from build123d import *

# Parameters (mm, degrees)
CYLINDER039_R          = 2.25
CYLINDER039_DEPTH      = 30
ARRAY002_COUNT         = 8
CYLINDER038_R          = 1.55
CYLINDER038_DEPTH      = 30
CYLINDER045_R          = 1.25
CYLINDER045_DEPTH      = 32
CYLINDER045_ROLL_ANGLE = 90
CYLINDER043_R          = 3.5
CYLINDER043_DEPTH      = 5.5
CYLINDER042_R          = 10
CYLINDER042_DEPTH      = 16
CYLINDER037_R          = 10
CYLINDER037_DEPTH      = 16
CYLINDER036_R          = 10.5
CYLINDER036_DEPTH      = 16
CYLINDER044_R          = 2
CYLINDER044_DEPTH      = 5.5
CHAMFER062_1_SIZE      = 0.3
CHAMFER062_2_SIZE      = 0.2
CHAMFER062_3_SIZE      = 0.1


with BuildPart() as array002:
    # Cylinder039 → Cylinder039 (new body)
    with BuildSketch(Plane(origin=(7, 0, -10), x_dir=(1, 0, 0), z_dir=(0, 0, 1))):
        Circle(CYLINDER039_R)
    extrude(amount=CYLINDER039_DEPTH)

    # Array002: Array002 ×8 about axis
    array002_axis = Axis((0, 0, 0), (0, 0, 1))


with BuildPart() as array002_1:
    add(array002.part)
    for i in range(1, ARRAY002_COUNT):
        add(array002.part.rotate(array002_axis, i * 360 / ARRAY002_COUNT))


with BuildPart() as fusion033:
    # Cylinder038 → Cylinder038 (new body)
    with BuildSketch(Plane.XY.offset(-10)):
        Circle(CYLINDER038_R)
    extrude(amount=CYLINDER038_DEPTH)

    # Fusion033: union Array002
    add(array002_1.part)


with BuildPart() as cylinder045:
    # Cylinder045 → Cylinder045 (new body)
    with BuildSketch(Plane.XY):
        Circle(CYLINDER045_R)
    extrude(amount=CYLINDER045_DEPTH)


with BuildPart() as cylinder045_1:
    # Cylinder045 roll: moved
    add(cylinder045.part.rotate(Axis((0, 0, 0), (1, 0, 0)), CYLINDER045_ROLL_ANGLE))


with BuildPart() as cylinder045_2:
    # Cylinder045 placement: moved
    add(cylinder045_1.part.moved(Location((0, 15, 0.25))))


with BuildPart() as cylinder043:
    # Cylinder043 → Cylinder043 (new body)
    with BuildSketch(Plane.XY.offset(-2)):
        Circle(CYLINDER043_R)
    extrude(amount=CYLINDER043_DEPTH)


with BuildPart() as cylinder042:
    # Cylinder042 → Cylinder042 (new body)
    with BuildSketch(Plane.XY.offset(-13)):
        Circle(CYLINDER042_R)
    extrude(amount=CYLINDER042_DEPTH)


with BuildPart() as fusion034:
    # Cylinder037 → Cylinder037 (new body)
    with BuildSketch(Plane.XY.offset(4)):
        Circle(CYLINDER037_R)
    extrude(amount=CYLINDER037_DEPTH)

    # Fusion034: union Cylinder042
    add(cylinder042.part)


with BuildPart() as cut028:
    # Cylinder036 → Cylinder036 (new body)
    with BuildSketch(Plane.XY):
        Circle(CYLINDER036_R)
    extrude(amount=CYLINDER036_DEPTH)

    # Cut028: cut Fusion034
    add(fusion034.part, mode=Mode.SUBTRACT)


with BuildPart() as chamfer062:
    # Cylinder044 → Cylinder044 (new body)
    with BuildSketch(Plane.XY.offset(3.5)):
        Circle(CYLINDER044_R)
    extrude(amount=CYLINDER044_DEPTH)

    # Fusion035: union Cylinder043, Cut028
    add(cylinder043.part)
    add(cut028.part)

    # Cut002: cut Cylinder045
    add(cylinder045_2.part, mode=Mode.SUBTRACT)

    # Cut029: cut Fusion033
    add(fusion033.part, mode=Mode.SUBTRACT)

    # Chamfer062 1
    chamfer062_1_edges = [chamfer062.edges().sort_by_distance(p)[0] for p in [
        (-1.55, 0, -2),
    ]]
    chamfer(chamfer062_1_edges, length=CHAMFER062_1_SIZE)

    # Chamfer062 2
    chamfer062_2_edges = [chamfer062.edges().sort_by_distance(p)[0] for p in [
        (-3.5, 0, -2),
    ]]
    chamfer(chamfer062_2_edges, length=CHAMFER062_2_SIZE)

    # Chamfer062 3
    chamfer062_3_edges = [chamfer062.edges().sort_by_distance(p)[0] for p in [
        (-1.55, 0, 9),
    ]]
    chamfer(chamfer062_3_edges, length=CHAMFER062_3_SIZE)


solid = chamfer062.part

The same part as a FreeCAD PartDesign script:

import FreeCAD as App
import Part
import Sketcher
from FreeCAD import Vector


def edges_at(feature, points):
    """Names of the edges that pass closest to the given points."""
    edges = feature.Shape.Edges
    near = lambda p: min(range(len(edges)), key=lambda i: edges[i].distToShape(Part.Vertex(*p))[0])
    return sorted({f"Edge{near(p) + 1}" for p in points})

doc = App.newDocument("Part")
body = doc.addObject("PartDesign::Body", "Body")

# Sketch on XY plane
sketch1 = body.newObject("Sketcher::SketchObject", "Sketch")
sketch1.AttachmentSupport = (doc.getObject("XY_Plane"), [""])
sketch1.MapMode = "FlatFace"
sketch1.AttachmentOffset = App.Placement(Vector(0, 0, -10), App.Rotation())
sketch1.addGeometry(Part.Circle(Vector(7, 0, 0), Vector(0, 0, 1), 2.25), False)
sketch1.addConstraint([
    Sketcher.Constraint("PointOnObject", 0, 3, -1),
    Sketcher.Constraint("Diameter", 0, 4.5),
    Sketcher.Constraint("DistanceX", -1, 1, 0, 3, 7.0),
])
pad1 = body.newObject("PartDesign::Pad", "Pad")
pad1.Profile = sketch1
pad1.Length = 30
body2 = doc.addObject("PartDesign::Body", "Body001")
body2.AllowCompound = True
doc.recompute()

body2.BaseFeature = body
doc.recompute()

body3 = doc.addObject("PartDesign::Body", "Body002")
body3.BaseFeature = body
body3.Placement = App.Placement(Vector(0, 0, 0), App.Rotation(Vector(0, 0, 1), 45))
boolean = body2.newObject("PartDesign::Boolean", "Boolean")
boolean.Type = "Fuse"
boolean.addObjects([body3])
doc.recompute()

body4 = doc.addObject("PartDesign::Body", "Body003")
body4.BaseFeature = body
body4.Placement = App.Placement(Vector(0, 0, 0), App.Rotation(Vector(0, 0, 1), 90))
boolean2 = body2.newObject("PartDesign::Boolean", "Boolean001")
boolean2.Type = "Fuse"
boolean2.addObjects([body4])
doc.recompute()

body5 = doc.addObject("PartDesign::Body", "Body004")
body5.BaseFeature = body
body5.Placement = App.Placement(Vector(0, 0, 0), App.Rotation(Vector(0, 0, 1), 135))
boolean3 = body2.newObject("PartDesign::Boolean", "Boolean002")
boolean3.Type = "Fuse"
boolean3.addObjects([body5])
doc.recompute()

body6 = doc.addObject("PartDesign::Body", "Body005")
body6.BaseFeature = body
body6.Placement = App.Placement(Vector(0, 0, 0), App.Rotation(Vector(0, 0, 1), 180))
boolean4 = body2.newObject("PartDesign::Boolean", "Boolean003")
boolean4.Type = "Fuse"
boolean4.addObjects([body6])
doc.recompute()

body7 = doc.addObject("PartDesign::Body", "Body006")
body7.BaseFeature = body
body7.Placement = App.Placement(Vector(0, 0, 0), App.Rotation(Vector(0, 0, 1), 225))
boolean5 = body2.newObject("PartDesign::Boolean", "Boolean004")
boolean5.Type = "Fuse"
boolean5.addObjects([body7])
doc.recompute()

body8 = doc.addObject("PartDesign::Body", "Body007")
body8.BaseFeature = body
body8.Placement = App.Placement(Vector(0, 0, 0), App.Rotation(Vector(0, 0, 1), 270))
boolean6 = body2.newObject("PartDesign::Boolean", "Boolean005")
boolean6.Type = "Fuse"
boolean6.addObjects([body8])
doc.recompute()

body.Placement = App.Placement(Vector(0, 0, 0), App.Rotation(Vector(0, 0, 1), 315))
boolean7 = body2.newObject("PartDesign::Boolean", "Boolean006")
boolean7.Type = "Fuse"
boolean7.addObjects([body])
body9 = doc.addObject("PartDesign::Body", "Body008")
body9.AllowCompound = True

# Sketch on XY plane
sketch2 = body9.newObject("Sketcher::SketchObject", "Sketch001")
sketch2.AttachmentSupport = (doc.getObject("XY_Plane008"), [""])
sketch2.MapMode = "FlatFace"
sketch2.AttachmentOffset = App.Placement(Vector(0, 0, -10), App.Rotation())
sketch2.addGeometry(Part.Circle(Vector(0, 0, 0), Vector(0, 0, 1), 1.55), False)
sketch2.addConstraint([
    Sketcher.Constraint("Coincident", 0, 3, -1, 1),
    Sketcher.Constraint("Diameter", 0, 3.1),
])
pad2 = body9.newObject("PartDesign::Pad", "Pad001")
pad2.Profile = sketch2
pad2.Length = 30
doc.recompute()

boolean8 = body9.newObject("PartDesign::Boolean", "Boolean007")
boolean8.Type = "Fuse"
boolean8.addObjects([body2])
body10 = doc.addObject("PartDesign::Body", "Body009")

# Sketch on XY plane
sketch3 = body10.newObject("Sketcher::SketchObject", "Sketch002")
sketch3.AttachmentSupport = (doc.getObject("XY_Plane009"), [""])
sketch3.MapMode = "FlatFace"
sketch3.addGeometry(Part.Circle(Vector(0, 0, 0), Vector(0, 0, 1), 1.25), False)
sketch3.addConstraint([
    Sketcher.Constraint("Coincident", 0, 3, -1, 1),
    Sketcher.Constraint("Diameter", 0, 2.5),
])
pad3 = body10.newObject("PartDesign::Pad", "Pad002")
pad3.Profile = sketch3
pad3.Length = 32
body11 = doc.addObject("PartDesign::Body", "Body010")
doc.recompute()

body10.Placement = App.Placement(Vector(0, 0, 0), App.Rotation(Vector(1, 0, 0), 90))
boolean9 = body11.newObject("PartDesign::Boolean", "Boolean008")
boolean9.Type = "Fuse"
boolean9.addObjects([body10])
body12 = doc.addObject("PartDesign::Body", "Body011")
doc.recompute()

body11.Placement = App.Placement(Vector(0, 15, 0.25), App.Rotation(Vector(0, 0, 1), 0))
boolean10 = body12.newObject("PartDesign::Boolean", "Boolean009")
boolean10.Type = "Fuse"
boolean10.addObjects([body11])
body13 = doc.addObject("PartDesign::Body", "Body012")

# Sketch on XY plane
sketch4 = body13.newObject("Sketcher::SketchObject", "Sketch003")
sketch4.AttachmentSupport = (doc.getObject("XY_Plane012"), [""])
sketch4.MapMode = "FlatFace"
sketch4.AttachmentOffset = App.Placement(Vector(0, 0, -2), App.Rotation())
sketch4.addGeometry(Part.Circle(Vector(0, 0, 0), Vector(0, 0, 1), 3.5), False)
sketch4.addConstraint([
    Sketcher.Constraint("Coincident", 0, 3, -1, 1),
    Sketcher.Constraint("Diameter", 0, 7.0),
])
pad4 = body13.newObject("PartDesign::Pad", "Pad003")
pad4.Profile = sketch4
pad4.Length = 5.5
body14 = doc.addObject("PartDesign::Body", "Body013")

# Sketch on XY plane
sketch5 = body14.newObject("Sketcher::SketchObject", "Sketch004")
sketch5.AttachmentSupport = (doc.getObject("XY_Plane013"), [""])
sketch5.MapMode = "FlatFace"
sketch5.AttachmentOffset = App.Placement(Vector(0, 0, -13), App.Rotation())
sketch5.addGeometry(Part.Circle(Vector(0, 0, 0), Vector(0, 0, 1), 10), False)
sketch5.addConstraint([
    Sketcher.Constraint("Coincident", 0, 3, -1, 1),
    Sketcher.Constraint("Diameter", 0, 20.0),
])
pad5 = body14.newObject("PartDesign::Pad", "Pad004")
pad5.Profile = sketch5
pad5.Length = 16
body15 = doc.addObject("PartDesign::Body", "Body014")
body15.AllowCompound = True

# Sketch on XY plane
sketch6 = body15.newObject("Sketcher::SketchObject", "Sketch005")
sketch6.AttachmentSupport = (doc.getObject("XY_Plane014"), [""])
sketch6.MapMode = "FlatFace"
sketch6.AttachmentOffset = App.Placement(Vector(0, 0, 4), App.Rotation())
sketch6.addGeometry(Part.Circle(Vector(0, 0, 0), Vector(0, 0, 1), 10), False)
sketch6.addConstraint([
    Sketcher.Constraint("Coincident", 0, 3, -1, 1),
    Sketcher.Constraint("Diameter", 0, 20.0),
])
pad6 = body15.newObject("PartDesign::Pad", "Pad005")
pad6.Profile = sketch6
pad6.Length = 16
doc.recompute()

boolean11 = body15.newObject("PartDesign::Boolean", "Boolean010")
boolean11.Type = "Fuse"
boolean11.addObjects([body14])
body16 = doc.addObject("PartDesign::Body", "Body015")

# Sketch on XY plane
sketch7 = body16.newObject("Sketcher::SketchObject", "Sketch006")
sketch7.AttachmentSupport = (doc.getObject("XY_Plane015"), [""])
sketch7.MapMode = "FlatFace"
sketch7.addGeometry(Part.Circle(Vector(0, 0, 0), Vector(0, 0, 1), 10.5), False)
sketch7.addConstraint([
    Sketcher.Constraint("Coincident", 0, 3, -1, 1),
    Sketcher.Constraint("Diameter", 0, 21.0),
])
pad7 = body16.newObject("PartDesign::Pad", "Pad006")
pad7.Profile = sketch7
pad7.Length = 16
doc.recompute()

boolean12 = body16.newObject("PartDesign::Boolean", "Boolean011")
boolean12.Type = "Cut"
boolean12.addObjects([body15])
body17 = doc.addObject("PartDesign::Body", "Body016")

# Sketch on XY plane
sketch8 = body17.newObject("Sketcher::SketchObject", "Sketch007")
sketch8.AttachmentSupport = (doc.getObject("XY_Plane016"), [""])
sketch8.MapMode = "FlatFace"
sketch8.AttachmentOffset = App.Placement(Vector(0, 0, 3.5), App.Rotation())
sketch8.addGeometry(Part.Circle(Vector(0, 0, 0), Vector(0, 0, 1), 2), False)
sketch8.addConstraint([
    Sketcher.Constraint("Coincident", 0, 3, -1, 1),
    Sketcher.Constraint("Diameter", 0, 4.0),
])
pad8 = body17.newObject("PartDesign::Pad", "Pad007")
pad8.Profile = sketch8
pad8.Length = 5.5
doc.recompute()

boolean13 = body17.newObject("PartDesign::Boolean", "Boolean012")
boolean13.Type = "Fuse"
boolean13.addObjects([body13])
doc.recompute()

boolean14 = body17.newObject("PartDesign::Boolean", "Boolean013")
boolean14.Type = "Fuse"
boolean14.addObjects([body16])
doc.recompute()

boolean15 = body17.newObject("PartDesign::Boolean", "Boolean014")
boolean15.Type = "Cut"
boolean15.addObjects([body12])
doc.recompute()

boolean16 = body17.newObject("PartDesign::Boolean", "Boolean015")
boolean16.Type = "Cut"
boolean16.addObjects([body9])
doc.recompute()

chamfer = body17.newObject("PartDesign::Chamfer", "Chamfer")
chamfer.Base = (boolean16, edges_at(boolean16, [(-1.55, 0, -2)]))
chamfer.Size = 0.3
doc.recompute()

chamfer2 = body17.newObject("PartDesign::Chamfer", "Chamfer001")
chamfer2.Base = (chamfer, edges_at(chamfer, [(-3.5, 0, -2)]))
chamfer2.Size = 0.2
doc.recompute()

chamfer3 = body17.newObject("PartDesign::Chamfer", "Chamfer002")
chamfer3.Base = (chamfer2, edges_at(chamfer2, [(-1.55, 0, 9)]))
chamfer3.Size = 0.1

doc.recompute()
